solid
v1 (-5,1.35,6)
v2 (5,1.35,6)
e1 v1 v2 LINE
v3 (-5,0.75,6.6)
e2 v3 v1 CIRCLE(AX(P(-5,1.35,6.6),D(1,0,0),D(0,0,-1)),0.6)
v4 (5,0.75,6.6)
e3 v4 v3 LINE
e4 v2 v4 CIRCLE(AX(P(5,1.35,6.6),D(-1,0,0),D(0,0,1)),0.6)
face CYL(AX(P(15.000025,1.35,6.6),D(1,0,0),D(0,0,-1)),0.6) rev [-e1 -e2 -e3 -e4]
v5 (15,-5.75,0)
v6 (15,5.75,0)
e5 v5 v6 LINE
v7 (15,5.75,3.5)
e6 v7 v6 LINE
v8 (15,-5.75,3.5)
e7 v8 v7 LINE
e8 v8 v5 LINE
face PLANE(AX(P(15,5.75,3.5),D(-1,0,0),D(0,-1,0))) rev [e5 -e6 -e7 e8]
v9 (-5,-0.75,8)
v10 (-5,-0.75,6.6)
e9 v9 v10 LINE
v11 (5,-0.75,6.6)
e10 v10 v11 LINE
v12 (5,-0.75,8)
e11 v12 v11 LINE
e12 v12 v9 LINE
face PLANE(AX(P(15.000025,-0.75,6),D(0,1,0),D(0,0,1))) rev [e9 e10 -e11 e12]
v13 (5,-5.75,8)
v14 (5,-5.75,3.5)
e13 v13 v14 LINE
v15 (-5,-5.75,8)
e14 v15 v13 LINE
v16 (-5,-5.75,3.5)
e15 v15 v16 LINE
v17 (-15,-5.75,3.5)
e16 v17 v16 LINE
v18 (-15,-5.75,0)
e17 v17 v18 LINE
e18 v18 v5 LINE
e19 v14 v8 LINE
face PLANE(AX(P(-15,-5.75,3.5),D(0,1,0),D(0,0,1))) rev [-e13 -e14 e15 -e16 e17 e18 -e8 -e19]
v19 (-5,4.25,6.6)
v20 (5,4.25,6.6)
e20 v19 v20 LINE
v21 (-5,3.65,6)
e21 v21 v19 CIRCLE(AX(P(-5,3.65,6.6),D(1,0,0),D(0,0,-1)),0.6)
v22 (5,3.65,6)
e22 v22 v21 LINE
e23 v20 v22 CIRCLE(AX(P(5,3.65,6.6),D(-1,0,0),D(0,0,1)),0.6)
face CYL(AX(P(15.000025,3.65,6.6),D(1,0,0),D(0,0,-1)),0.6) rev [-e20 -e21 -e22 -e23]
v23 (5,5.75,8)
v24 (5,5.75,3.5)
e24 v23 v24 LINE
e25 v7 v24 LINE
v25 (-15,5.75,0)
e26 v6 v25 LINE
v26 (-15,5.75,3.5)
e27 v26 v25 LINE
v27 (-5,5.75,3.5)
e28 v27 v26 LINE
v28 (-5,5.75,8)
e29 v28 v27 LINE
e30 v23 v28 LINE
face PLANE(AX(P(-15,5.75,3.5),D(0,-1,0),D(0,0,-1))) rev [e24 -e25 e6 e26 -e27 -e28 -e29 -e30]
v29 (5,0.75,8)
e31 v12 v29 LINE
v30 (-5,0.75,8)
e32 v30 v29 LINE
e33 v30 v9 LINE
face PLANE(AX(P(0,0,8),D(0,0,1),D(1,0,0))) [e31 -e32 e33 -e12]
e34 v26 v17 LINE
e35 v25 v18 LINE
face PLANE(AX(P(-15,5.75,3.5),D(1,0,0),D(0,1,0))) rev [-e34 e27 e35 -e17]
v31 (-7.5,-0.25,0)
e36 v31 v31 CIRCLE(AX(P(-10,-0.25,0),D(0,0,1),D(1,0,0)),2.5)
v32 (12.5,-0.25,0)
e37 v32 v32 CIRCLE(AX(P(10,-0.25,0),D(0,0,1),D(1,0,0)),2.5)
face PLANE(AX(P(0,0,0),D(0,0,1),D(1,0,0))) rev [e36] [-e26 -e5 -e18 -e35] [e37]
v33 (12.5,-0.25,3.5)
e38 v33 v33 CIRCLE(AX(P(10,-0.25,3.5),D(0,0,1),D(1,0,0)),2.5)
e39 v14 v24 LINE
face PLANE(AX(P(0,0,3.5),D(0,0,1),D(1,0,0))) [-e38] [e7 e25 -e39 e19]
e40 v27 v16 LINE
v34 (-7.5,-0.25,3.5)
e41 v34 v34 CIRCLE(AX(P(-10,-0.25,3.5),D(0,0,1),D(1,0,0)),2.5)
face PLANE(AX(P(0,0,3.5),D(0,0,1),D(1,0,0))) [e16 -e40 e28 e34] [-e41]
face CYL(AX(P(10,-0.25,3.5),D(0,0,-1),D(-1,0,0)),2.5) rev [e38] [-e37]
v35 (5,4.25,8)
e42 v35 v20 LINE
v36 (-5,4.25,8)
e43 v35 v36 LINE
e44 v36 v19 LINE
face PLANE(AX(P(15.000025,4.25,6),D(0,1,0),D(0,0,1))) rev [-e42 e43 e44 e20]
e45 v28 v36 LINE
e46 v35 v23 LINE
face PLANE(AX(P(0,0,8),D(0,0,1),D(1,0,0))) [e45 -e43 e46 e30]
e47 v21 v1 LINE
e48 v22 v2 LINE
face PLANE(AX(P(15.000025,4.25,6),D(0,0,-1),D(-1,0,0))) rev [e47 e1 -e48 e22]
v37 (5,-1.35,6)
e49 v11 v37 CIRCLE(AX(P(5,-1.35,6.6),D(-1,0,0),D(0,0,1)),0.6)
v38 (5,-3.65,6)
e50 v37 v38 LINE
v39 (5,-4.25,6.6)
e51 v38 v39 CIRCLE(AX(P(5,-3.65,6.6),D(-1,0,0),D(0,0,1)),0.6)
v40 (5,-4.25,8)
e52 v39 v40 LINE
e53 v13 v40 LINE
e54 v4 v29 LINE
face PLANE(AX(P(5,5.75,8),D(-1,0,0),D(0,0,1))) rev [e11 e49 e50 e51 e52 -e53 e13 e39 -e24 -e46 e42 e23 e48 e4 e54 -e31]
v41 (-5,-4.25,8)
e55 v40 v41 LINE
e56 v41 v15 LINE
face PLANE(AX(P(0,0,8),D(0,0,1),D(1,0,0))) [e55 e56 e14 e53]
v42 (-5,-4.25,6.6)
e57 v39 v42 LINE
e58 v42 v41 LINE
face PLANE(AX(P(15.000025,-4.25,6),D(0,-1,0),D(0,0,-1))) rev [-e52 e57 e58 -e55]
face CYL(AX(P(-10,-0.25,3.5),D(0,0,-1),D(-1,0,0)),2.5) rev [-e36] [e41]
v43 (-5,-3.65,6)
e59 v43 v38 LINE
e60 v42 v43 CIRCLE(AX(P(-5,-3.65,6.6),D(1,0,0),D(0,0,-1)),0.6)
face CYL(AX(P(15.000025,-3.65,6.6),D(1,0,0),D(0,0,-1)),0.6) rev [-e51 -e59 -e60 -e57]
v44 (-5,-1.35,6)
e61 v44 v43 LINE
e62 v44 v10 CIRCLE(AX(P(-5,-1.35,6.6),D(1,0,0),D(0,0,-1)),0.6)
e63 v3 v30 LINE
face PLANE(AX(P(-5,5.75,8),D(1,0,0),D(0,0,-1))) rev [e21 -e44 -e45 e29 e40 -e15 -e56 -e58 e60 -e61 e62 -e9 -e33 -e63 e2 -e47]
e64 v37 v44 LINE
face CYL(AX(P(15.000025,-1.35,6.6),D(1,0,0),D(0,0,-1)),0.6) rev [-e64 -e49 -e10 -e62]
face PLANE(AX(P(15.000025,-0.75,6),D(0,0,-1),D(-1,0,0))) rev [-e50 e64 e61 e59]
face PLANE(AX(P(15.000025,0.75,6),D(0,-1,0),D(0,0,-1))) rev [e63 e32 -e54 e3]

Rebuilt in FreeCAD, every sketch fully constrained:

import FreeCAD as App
import Part
import Sketcher

V = App.Vector


def edges_at(feature, points):
    """Names of the edges that pass closest to the given points."""
    edges = feature.Shape.Edges
    near = lambda p: min(range(len(edges)), key=lambda i: edges[i].distToShape(Part.Vertex(*p))[0])
    return sorted({f"Edge{near(p) + 1}" for p in points})

doc = App.newDocument("Part")
params = doc.addObject("Spreadsheet::Sheet", "Params")
for row, (alias, value) in enumerate([
    ("sketch1_diameter", "5 mm"),
    ("sketch1_width", "30 mm"),
    ("sketch1_height", "11.5 mm"),
    ("pad1_length", "3.5 mm"),
    ("sketch2_width", "10 mm"),
    ("sketch2_height", "11.5 mm"),
    ("pad2_length", "4.5 mm"),
    ("sketch3_height", "2 mm"),
    ("sketch3_width", "3.5 mm"),
    ("fillet_radius", "0.6 mm"),
    ("linearpattern_pitch", "5 mm"),
    ("fillet2_radius", "0.6 mm"),
], start=1):
    params.set(f"A{row}", alias)
    params.set(f"B{row}", "=" + value)
    params.setAlias(f"B{row}", alias)

body = doc.addObject("PartDesign::Body", "Body")

sketch1 = body.newObject("Sketcher::SketchObject", "Sketch")
sketch1.AttachmentSupport = (doc.getObject("XY_Plane"), [""])
sketch1.MapMode = "FlatFace"
sketch1.addGeometry(Part.LineSegment(V(-15, 5.8, 0), V(-15, -5.8, 0)), False)
sketch1.addGeometry(Part.LineSegment(V(-15, -5.8, 0), V(15, -5.8, 0)), False)
sketch1.addGeometry(Part.LineSegment(V(15, -5.8, 0), V(15, 5.8, 0)), False)
sketch1.addGeometry(Part.LineSegment(V(15, 5.8, 0), V(-15, 5.8, 0)), False)
sketch1.addGeometry(Part.Circle(V(-10, -0.2, 0), V(0, 0, 1), 2.5), False)
sketch1.addGeometry(Part.Circle(V(10, -0.2, 0), V(0, 0, 1), 2.5), False)
sketch1.addConstraint(Sketcher.Constraint("Coincident", 0, 2, 1, 1))
sketch1.addConstraint(Sketcher.Constraint("Coincident", 1, 2, 2, 1))
sketch1.addConstraint(Sketcher.Constraint("Coincident", 2, 2, 3, 1))
sketch1.addConstraint(Sketcher.Constraint("Coincident", 3, 2, 0, 1))
sketch1.addConstraint(Sketcher.Constraint("Vertical", 0))
sketch1.addConstraint(Sketcher.Constraint("Horizontal", 1))
sketch1.addConstraint(Sketcher.Constraint("Vertical", 2))
sketch1.addConstraint(Sketcher.Constraint("Horizontal", 3))
sketch1.addConstraint(Sketcher.Constraint("Equal", 4, 5))
sketch1.addConstraint(Sketcher.Constraint("Symmetric", 0, 2, 2, 2, -1, 1))
sketch1.addConstraint(Sketcher.Constraint("Symmetric", 4, 3, 5, 3, -2))
sketch1.addConstraint(Sketcher.Constraint("Diameter", 4, 5.0))
sketch1.addConstraint(Sketcher.Constraint("DistanceX", 1, 1, 1, 2, 30.0))
sketch1.addConstraint(Sketcher.Constraint("DistanceY", 0, 2, 0, 1, 11.5))
sketch1.addConstraint(Sketcher.Constraint("DistanceX", 4, 3, -1, 1, 10.0))
sketch1.addConstraint(Sketcher.Constraint("DistanceY", 5, 3, 2, 2, 6.0))
sketch1.setExpression("Constraints[11]", "Params.sketch1_diameter")
sketch1.setExpression("Constraints[12]", "Params.sketch1_width")
sketch1.setExpression("Constraints[13]", "Params.sketch1_height")
pad1 = body.newObject("PartDesign::Pad", "Pad")
pad1.Profile = sketch1
pad1.setExpression("Length", "Params.pad1_length")

sketch2 = body.newObject("Sketcher::SketchObject", "Sketch001")
sketch2.AttachmentSupport = (doc.getObject("XY_Plane"), [""])
sketch2.MapMode = "FlatFace"
sketch2.AttachmentOffset = App.Placement(V(0, 0, 3.5), App.Rotation())
sketch2.addGeometry(Part.LineSegment(V(-5, 6, 0), V(-5, -6, 0)), False)
sketch2.addGeometry(Part.LineSegment(V(-5, -6, 0), V(5, -6, 0)), False)
sketch2.addGeometry(Part.LineSegment(V(5, -6, 0), V(5, 6, 0)), False)
sketch2.addGeometry(Part.LineSegment(V(5, 6, 0), V(-5, 6, 0)), False)
sketch2.addConstraint(Sketcher.Constraint("Coincident", 0, 2, 1, 1))
sketch2.addConstraint(Sketcher.Constraint("Coincident", 1, 2, 2, 1))
sketch2.addConstraint(Sketcher.Constraint("Coincident", 2, 2, 3, 1))
sketch2.addConstraint(Sketcher.Constraint("Coincident", 3, 2, 0, 1))
sketch2.addConstraint(Sketcher.Constraint("Vertical", 0))
sketch2.addConstraint(Sketcher.Constraint("Horizontal", 1))
sketch2.addConstraint(Sketcher.Constraint("Vertical", 2))
sketch2.addConstraint(Sketcher.Constraint("Horizontal", 3))
sketch2.addConstraint(Sketcher.Constraint("Symmetric", 0, 2, 2, 2, -1, 1))
sketch2.addConstraint(Sketcher.Constraint("DistanceX", 1, 1, 1, 2, 10.0))
sketch2.addConstraint(Sketcher.Constraint("DistanceY", 0, 2, 0, 1, 11.5))
sketch2.setExpression("Constraints[9]", "Params.sketch2_width")
sketch2.setExpression("Constraints[10]", "Params.sketch2_height")
pad2 = body.newObject("PartDesign::Pad", "Pad001")
pad2.Profile = sketch2
pad2.setExpression("Length", "Params.pad2_length")

sketch3 = body.newObject("Sketcher::SketchObject", "Sketch002")
sketch3.AttachmentSupport = (doc.getObject("YZ_Plane"), [""])
sketch3.MapMode = "FlatFace"
sketch3.AttachmentOffset = App.Placement(V(0, 0, -5), App.Rotation())
sketch3.addGeometry(Part.LineSegment(V(4.2, 6, 0), V(0.8, 6, 0)), False)
sketch3.addGeometry(Part.LineSegment(V(0.8, 6, 0), V(0.8, 8, 0)), False)
sketch3.addGeometry(Part.LineSegment(V(0.8, 8, 0), V(4.2, 8, 0)), False)
sketch3.addGeometry(Part.LineSegment(V(4.2, 8, 0), V(4.2, 6, 0)), False)
sketch3.addConstraint(Sketcher.Constraint("Coincident", 0, 2, 1, 1))
sketch3.addConstraint(Sketcher.Constraint("Coincident", 1, 2, 2, 1))
sketch3.addConstraint(Sketcher.Constraint("Coincident", 2, 2, 3, 1))
sketch3.addConstraint(Sketcher.Constraint("Coincident", 3, 2, 0, 1))
sketch3.addConstraint(Sketcher.Constraint("Horizontal", 0))
sketch3.addConstraint(Sketcher.Constraint("Vertical", 1))
sketch3.addConstraint(Sketcher.Constraint("Horizontal", 2))
sketch3.addConstraint(Sketcher.Constraint("Vertical", 3))
sketch3.addConstraint(Sketcher.Constraint("DistanceY", 1, 1, 1, 2, 2.0))
sketch3.addConstraint(Sketcher.Constraint("DistanceX", 0, 2, 0, 1, 3.5))
sketch3.addConstraint(Sketcher.Constraint("DistanceY", -1, 1, 0, 2, 6.0))
sketch3.addConstraint(Sketcher.Constraint("DistanceX", -1, 1, 0, 2, 0.75))
sketch3.setExpression("Constraints[8]", "Params.sketch3_height")
sketch3.setExpression("Constraints[9]", "Params.sketch3_width")
pocket1 = body.newObject("PartDesign::Pocket", "Pocket")
pocket1.Profile = sketch3
pocket1.Type = "ThroughAll"
pocket1.Reversed = True
doc.recompute()

fillet = body.newObject("PartDesign::Fillet", "Fillet")
fillet.Base = (pocket1, edges_at(pocket1, [(0, 0.75, 6), (0, 4.25, 6)]))
fillet.setExpression("Radius", "Params.fillet_radius")
doc.recompute()

linearpattern = body.newObject("PartDesign::LinearPattern", "LinearPattern")
linearpattern.Originals = [pocket1]
linearpattern.Direction = (doc.getObject("Y_Axis"), [""])
linearpattern.Mode = "offset"
linearpattern.setExpression("Offset", "Params.linearpattern_pitch")
linearpattern.Occurrences = 2
linearpattern.Reversed = True
body.Tip = linearpattern
doc.recompute()

fillet2 = body.newObject("PartDesign::Fillet", "Fillet001")
fillet2.Base = (linearpattern, edges_at(linearpattern, [(0, -4.25, 6), (0, -0.75, 6)]))
fillet2.setExpression("Radius", "Params.fillet2_radius")

doc.recompute()
